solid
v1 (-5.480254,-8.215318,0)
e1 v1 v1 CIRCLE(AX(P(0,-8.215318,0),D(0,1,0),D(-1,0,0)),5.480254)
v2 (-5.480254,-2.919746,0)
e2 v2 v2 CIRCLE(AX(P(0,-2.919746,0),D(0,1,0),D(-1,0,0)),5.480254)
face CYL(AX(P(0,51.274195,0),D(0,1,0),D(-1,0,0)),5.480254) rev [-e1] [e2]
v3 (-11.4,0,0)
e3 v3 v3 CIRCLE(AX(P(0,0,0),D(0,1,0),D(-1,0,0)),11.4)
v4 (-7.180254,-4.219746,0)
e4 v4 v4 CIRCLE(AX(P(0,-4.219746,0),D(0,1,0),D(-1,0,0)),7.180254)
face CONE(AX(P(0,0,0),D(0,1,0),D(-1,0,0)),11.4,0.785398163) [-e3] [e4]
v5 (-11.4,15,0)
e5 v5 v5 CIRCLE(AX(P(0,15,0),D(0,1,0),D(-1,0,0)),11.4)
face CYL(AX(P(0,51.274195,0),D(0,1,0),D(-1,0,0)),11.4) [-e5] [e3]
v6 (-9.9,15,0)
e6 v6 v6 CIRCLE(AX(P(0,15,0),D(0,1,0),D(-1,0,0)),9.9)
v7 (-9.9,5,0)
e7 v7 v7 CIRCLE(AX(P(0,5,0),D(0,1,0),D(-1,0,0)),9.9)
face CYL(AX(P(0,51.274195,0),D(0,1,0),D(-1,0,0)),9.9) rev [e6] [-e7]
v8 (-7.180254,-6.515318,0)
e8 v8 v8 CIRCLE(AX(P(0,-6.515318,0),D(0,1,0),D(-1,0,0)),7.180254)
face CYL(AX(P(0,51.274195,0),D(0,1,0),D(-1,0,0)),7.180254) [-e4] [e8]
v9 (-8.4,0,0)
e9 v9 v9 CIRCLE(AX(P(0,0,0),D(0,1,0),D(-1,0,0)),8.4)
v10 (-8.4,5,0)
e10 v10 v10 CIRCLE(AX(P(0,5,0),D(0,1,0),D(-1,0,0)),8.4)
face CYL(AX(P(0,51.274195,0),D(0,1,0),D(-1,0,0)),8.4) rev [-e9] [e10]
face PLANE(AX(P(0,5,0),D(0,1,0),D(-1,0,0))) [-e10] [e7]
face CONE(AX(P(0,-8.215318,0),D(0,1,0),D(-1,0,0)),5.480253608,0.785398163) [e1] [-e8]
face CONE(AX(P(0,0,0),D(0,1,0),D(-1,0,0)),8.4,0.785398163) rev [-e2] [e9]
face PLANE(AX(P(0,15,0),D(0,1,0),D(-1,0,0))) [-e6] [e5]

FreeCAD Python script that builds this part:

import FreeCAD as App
import Part
import Sketcher

V = App.Vector
Q = App.Units.Quantity


def add_polygon(sketch, points):
    """Adds a closed chain of lines whose ends are joined by coincident constraints."""
    first, n = sketch.GeometryCount, len(points)
    for a, b in zip(points, points[1:] + points[:1]):
        sketch.addGeometry(Part.LineSegment(App.Vector(*a, 0), App.Vector(*b, 0)), False)
    for i in range(n):
        sketch.addConstraint(Sketcher.Constraint("Coincident", first + i, 2, first + (i + 1) % n, 1))

doc = App.newDocument("Part")
body = doc.addObject("PartDesign::Body", "Body")

sketch1 = doc.addObject("Sketcher::SketchObject", "Sketch")
body.addObject(sketch1)
sketch1.AttachmentSupport = (doc.XY_Plane, [""])
sketch1.MapMode = "FlatFace"
add_polygon(sketch1, [(7.2, -6.5), (7.2, -4.2), (11.4, 0), (11.4, 15), (9.9, 15), (9.9, 5), (8.4, 5), (8.4, 0), (5.5, -2.9), (5.5, -8.2)])
sketch1.addConstraint(Sketcher.Constraint("Vertical", 0))
sketch1.addConstraint(Sketcher.Constraint("Vertical", 2))
sketch1.addConstraint(Sketcher.Constraint("Horizontal", 3))
sketch1.addConstraint(Sketcher.Constraint("Vertical", 4))
sketch1.addConstraint(Sketcher.Constraint("Horizontal", 5))
sketch1.addConstraint(Sketcher.Constraint("Vertical", 6))
sketch1.addConstraint(Sketcher.Constraint("Vertical", 8))
sketch1.addConstraint(Sketcher.Constraint("PointOnObject", 1, 2, -1))
sketch1.addConstraint(Sketcher.Constraint("PointOnObject", 6, 2, -1))
sketch1.addConstraint(Sketcher.Constraint("Parallel", 1, 7))
sketch1.addConstraint(Sketcher.Constraint("Parallel", 7, 9))
sketch1.addConstraint(Sketcher.Constraint("Equal", 3, 5))
sketch1.addConstraint(Sketcher.Constraint("DistanceY", 2, 1, 2, 2, 15.0))
sketch1.addConstraint(Sketcher.Constraint("DistanceY", 4, 2, 4, 1, 10.0))
sketch1.addConstraint(Sketcher.Constraint("Angle", 1, Q("45 deg")))
sketch1.addConstraint(Sketcher.Constraint("DistanceX", 3, 2, 3, 1, 1.5))
sketch1.addConstraint(Sketcher.Constraint("DistanceX", -1, 1, 1, 2, 11.4))
sketch1.addConstraint(Sketcher.Constraint("DistanceX", 7, 2, 0, 2, 1.7))
sketch1.addConstraint(Sketcher.Constraint("DistanceY", 0, 1, 0, 2, 2.295572))
sketch1.addConstraint(Sketcher.Constraint("DistanceY", 8, 2, -1, 1, 8.215318))
revolution = doc.addObject("PartDesign::Revolution", "Revolution")
body.addObject(revolution)
revolution.Profile = sketch1
revolution.ReferenceAxis = (sketch1, ["V_Axis"])
revolution.Angle = 360

doc.recompute()
